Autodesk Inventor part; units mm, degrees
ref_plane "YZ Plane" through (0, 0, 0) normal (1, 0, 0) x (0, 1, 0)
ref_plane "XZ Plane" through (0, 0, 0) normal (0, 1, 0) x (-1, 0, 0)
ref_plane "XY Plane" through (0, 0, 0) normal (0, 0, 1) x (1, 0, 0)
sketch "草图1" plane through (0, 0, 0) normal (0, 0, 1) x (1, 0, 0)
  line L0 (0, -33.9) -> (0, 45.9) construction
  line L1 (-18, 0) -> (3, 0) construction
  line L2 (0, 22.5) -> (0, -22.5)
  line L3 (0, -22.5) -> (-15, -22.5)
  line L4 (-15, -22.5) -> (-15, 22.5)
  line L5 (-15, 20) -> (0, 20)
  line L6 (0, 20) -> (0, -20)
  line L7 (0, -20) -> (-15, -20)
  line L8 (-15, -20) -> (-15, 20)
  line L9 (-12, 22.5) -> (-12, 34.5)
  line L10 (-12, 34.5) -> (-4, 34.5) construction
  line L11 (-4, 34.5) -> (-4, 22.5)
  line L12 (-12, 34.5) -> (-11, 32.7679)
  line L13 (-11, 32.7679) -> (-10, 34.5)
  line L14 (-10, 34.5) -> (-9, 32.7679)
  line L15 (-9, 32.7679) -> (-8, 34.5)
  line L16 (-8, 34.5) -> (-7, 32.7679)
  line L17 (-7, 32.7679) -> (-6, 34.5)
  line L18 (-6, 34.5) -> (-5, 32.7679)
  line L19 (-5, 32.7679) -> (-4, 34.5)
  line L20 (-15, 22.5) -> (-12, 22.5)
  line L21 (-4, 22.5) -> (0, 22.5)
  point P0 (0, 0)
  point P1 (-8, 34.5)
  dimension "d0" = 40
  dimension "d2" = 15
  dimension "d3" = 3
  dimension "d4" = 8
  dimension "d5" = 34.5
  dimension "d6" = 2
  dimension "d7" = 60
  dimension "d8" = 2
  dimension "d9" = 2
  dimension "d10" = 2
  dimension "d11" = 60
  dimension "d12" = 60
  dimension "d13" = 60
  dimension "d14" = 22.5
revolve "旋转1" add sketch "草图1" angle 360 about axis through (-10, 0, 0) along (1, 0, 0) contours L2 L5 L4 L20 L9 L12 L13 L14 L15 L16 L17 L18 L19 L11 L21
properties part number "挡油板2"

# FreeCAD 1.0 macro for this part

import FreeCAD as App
import Part
import Sketcher
Q = App.Units.Quantity

doc = App.newDocument("Part")
body = doc.addObject("PartDesign::Body", "Body")

sketch1 = body.newObject("Sketcher::SketchObject", "Sketch")
sketch1.AttachmentSupport = (doc.getObject("XY_Plane"), [""])
sketch1.MapMode = "FlatFace"
sketch1.addGeometry([
    Part.LineSegment(App.Vector(0, 20, 0), App.Vector(0, 22.5, 0)),
    Part.LineSegment(App.Vector(0, 22.5, 0), App.Vector(-4, 22.5, 0)),
    Part.LineSegment(App.Vector(-4, 22.5, 0), App.Vector(-4, 34.5, 0)),
    Part.LineSegment(App.Vector(-4, 34.5, 0), App.Vector(-5, 32.8, 0)),
    Part.LineSegment(App.Vector(-5, 32.8, 0), App.Vector(-6, 34.5, 0)),
    Part.LineSegment(App.Vector(-6, 34.5, 0), App.Vector(-7, 32.8, 0)),
    Part.LineSegment(App.Vector(-7, 32.8, 0), App.Vector(-8, 34.5, 0)),
    Part.LineSegment(App.Vector(-8, 34.5, 0), App.Vector(-9, 32.8, 0)),
    Part.LineSegment(App.Vector(-9, 32.8, 0), App.Vector(-10, 34.5, 0)),
    Part.LineSegment(App.Vector(-10, 34.5, 0), App.Vector(-11, 32.8, 0)),
    Part.LineSegment(App.Vector(-11, 32.8, 0), App.Vector(-12, 34.5, 0)),
    Part.LineSegment(App.Vector(-12, 34.5, 0), App.Vector(-12, 22.5, 0)),
    Part.LineSegment(App.Vector(-12, 22.5, 0), App.Vector(-15, 22.5, 0)),
    Part.LineSegment(App.Vector(-15, 22.5, 0), App.Vector(-15, 20, 0)),
    Part.LineSegment(App.Vector(-15, 20, 0), App.Vector(0, 20, 0)),
], False)
sketch1.addConstraint([
    Sketcher.Constraint("Coincident", 0, 2, 1, 1),
    Sketcher.Constraint("Coincident", 1, 2, 2, 1),
    Sketcher.Constraint("Coincident", 2, 2, 3, 1),
    Sketcher.Constraint("Coincident", 3, 2, 4, 1),
    Sketcher.Constraint("Coincident", 4, 2, 5, 1),
    Sketcher.Constraint("Coincident", 5, 2, 6, 1),
    Sketcher.Constraint("Coincident", 6, 2, 7, 1),
    Sketcher.Constraint("Coincident", 7, 2, 8, 1),
    Sketcher.Constraint("Coincident", 8, 2, 9, 1),
    Sketcher.Constraint("Coincident", 9, 2, 10, 1),
    Sketcher.Constraint("Coincident", 10, 2, 11, 1),
    Sketcher.Constraint("Coincident", 11, 2, 12, 1),
    Sketcher.Constraint("Coincident", 12, 2, 13, 1),
    Sketcher.Constraint("Coincident", 13, 2, 14, 1),
    Sketcher.Constraint("Coincident", 14, 2, 0, 1),
    Sketcher.Constraint("Vertical", 0),
    Sketcher.Constraint("Horizontal", 1),
    Sketcher.Constraint("Vertical", 2),
    Sketcher.Constraint("Vertical", 11),
    Sketcher.Constraint("Horizontal", 12),
    Sketcher.Constraint("Vertical", 13),
    Sketcher.Constraint("Horizontal", 14),
    Sketcher.Constraint("PointOnObject", 0, 2, -2),
    Sketcher.Constraint("Parallel", 3, 5),
    Sketcher.Constraint("Parallel", 4, 6),
    Sketcher.Constraint("Parallel", 5, 7),
    Sketcher.Constraint("Parallel", 6, 8),
    Sketcher.Constraint("Parallel", 7, 9),
    Sketcher.Constraint("Parallel", 8, 10),
    Sketcher.Constraint("Horizontal", 2, 2, 4, 2),
    Sketcher.Constraint("Horizontal", 3, 2, 5, 2),
    Sketcher.Constraint("Horizontal", 4, 2, 6, 2),
    Sketcher.Constraint("Horizontal", 5, 2, 7, 2),
    Sketcher.Constraint("Horizontal", 6, 2, 8, 2),
    Sketcher.Constraint("Horizontal", 7, 2, 9, 2),
    Sketcher.Constraint("Horizontal", 8, 2, 10, 2),
    Sketcher.Constraint("Horizontal", 1, 2, 11, 2),
    Sketcher.Constraint("Equal", 3, 4),
    Sketcher.Constraint("DistanceX", 12, 2, 12, 1, Q("3 mm")),
    Sketcher.Constraint("DistanceX", 14, 1, 14, 2, Q("15 mm")),
    Sketcher.Constraint("Distance", 3, Q("2 mm")),
    Sketcher.Constraint("DistanceX", 6, 2, -1, 1, Q("8 mm")),
    Sketcher.Constraint("DistanceY", -1, 1, 0, 2, Q("22.5 mm")),
    Sketcher.Constraint("DistanceY", -1, 1, 2, 2, Q("34.5 mm")),
    Sketcher.Constraint("DistanceY", 0, 1, 0, 2, Q("2.5 mm")),
])
revolution = body.newObject("PartDesign::Revolution", "Revolution")
revolution.Profile = sketch1
revolution.ReferenceAxis = (sketch1, ["H_Axis"])
revolution.Angle = 360

doc.recompute()
